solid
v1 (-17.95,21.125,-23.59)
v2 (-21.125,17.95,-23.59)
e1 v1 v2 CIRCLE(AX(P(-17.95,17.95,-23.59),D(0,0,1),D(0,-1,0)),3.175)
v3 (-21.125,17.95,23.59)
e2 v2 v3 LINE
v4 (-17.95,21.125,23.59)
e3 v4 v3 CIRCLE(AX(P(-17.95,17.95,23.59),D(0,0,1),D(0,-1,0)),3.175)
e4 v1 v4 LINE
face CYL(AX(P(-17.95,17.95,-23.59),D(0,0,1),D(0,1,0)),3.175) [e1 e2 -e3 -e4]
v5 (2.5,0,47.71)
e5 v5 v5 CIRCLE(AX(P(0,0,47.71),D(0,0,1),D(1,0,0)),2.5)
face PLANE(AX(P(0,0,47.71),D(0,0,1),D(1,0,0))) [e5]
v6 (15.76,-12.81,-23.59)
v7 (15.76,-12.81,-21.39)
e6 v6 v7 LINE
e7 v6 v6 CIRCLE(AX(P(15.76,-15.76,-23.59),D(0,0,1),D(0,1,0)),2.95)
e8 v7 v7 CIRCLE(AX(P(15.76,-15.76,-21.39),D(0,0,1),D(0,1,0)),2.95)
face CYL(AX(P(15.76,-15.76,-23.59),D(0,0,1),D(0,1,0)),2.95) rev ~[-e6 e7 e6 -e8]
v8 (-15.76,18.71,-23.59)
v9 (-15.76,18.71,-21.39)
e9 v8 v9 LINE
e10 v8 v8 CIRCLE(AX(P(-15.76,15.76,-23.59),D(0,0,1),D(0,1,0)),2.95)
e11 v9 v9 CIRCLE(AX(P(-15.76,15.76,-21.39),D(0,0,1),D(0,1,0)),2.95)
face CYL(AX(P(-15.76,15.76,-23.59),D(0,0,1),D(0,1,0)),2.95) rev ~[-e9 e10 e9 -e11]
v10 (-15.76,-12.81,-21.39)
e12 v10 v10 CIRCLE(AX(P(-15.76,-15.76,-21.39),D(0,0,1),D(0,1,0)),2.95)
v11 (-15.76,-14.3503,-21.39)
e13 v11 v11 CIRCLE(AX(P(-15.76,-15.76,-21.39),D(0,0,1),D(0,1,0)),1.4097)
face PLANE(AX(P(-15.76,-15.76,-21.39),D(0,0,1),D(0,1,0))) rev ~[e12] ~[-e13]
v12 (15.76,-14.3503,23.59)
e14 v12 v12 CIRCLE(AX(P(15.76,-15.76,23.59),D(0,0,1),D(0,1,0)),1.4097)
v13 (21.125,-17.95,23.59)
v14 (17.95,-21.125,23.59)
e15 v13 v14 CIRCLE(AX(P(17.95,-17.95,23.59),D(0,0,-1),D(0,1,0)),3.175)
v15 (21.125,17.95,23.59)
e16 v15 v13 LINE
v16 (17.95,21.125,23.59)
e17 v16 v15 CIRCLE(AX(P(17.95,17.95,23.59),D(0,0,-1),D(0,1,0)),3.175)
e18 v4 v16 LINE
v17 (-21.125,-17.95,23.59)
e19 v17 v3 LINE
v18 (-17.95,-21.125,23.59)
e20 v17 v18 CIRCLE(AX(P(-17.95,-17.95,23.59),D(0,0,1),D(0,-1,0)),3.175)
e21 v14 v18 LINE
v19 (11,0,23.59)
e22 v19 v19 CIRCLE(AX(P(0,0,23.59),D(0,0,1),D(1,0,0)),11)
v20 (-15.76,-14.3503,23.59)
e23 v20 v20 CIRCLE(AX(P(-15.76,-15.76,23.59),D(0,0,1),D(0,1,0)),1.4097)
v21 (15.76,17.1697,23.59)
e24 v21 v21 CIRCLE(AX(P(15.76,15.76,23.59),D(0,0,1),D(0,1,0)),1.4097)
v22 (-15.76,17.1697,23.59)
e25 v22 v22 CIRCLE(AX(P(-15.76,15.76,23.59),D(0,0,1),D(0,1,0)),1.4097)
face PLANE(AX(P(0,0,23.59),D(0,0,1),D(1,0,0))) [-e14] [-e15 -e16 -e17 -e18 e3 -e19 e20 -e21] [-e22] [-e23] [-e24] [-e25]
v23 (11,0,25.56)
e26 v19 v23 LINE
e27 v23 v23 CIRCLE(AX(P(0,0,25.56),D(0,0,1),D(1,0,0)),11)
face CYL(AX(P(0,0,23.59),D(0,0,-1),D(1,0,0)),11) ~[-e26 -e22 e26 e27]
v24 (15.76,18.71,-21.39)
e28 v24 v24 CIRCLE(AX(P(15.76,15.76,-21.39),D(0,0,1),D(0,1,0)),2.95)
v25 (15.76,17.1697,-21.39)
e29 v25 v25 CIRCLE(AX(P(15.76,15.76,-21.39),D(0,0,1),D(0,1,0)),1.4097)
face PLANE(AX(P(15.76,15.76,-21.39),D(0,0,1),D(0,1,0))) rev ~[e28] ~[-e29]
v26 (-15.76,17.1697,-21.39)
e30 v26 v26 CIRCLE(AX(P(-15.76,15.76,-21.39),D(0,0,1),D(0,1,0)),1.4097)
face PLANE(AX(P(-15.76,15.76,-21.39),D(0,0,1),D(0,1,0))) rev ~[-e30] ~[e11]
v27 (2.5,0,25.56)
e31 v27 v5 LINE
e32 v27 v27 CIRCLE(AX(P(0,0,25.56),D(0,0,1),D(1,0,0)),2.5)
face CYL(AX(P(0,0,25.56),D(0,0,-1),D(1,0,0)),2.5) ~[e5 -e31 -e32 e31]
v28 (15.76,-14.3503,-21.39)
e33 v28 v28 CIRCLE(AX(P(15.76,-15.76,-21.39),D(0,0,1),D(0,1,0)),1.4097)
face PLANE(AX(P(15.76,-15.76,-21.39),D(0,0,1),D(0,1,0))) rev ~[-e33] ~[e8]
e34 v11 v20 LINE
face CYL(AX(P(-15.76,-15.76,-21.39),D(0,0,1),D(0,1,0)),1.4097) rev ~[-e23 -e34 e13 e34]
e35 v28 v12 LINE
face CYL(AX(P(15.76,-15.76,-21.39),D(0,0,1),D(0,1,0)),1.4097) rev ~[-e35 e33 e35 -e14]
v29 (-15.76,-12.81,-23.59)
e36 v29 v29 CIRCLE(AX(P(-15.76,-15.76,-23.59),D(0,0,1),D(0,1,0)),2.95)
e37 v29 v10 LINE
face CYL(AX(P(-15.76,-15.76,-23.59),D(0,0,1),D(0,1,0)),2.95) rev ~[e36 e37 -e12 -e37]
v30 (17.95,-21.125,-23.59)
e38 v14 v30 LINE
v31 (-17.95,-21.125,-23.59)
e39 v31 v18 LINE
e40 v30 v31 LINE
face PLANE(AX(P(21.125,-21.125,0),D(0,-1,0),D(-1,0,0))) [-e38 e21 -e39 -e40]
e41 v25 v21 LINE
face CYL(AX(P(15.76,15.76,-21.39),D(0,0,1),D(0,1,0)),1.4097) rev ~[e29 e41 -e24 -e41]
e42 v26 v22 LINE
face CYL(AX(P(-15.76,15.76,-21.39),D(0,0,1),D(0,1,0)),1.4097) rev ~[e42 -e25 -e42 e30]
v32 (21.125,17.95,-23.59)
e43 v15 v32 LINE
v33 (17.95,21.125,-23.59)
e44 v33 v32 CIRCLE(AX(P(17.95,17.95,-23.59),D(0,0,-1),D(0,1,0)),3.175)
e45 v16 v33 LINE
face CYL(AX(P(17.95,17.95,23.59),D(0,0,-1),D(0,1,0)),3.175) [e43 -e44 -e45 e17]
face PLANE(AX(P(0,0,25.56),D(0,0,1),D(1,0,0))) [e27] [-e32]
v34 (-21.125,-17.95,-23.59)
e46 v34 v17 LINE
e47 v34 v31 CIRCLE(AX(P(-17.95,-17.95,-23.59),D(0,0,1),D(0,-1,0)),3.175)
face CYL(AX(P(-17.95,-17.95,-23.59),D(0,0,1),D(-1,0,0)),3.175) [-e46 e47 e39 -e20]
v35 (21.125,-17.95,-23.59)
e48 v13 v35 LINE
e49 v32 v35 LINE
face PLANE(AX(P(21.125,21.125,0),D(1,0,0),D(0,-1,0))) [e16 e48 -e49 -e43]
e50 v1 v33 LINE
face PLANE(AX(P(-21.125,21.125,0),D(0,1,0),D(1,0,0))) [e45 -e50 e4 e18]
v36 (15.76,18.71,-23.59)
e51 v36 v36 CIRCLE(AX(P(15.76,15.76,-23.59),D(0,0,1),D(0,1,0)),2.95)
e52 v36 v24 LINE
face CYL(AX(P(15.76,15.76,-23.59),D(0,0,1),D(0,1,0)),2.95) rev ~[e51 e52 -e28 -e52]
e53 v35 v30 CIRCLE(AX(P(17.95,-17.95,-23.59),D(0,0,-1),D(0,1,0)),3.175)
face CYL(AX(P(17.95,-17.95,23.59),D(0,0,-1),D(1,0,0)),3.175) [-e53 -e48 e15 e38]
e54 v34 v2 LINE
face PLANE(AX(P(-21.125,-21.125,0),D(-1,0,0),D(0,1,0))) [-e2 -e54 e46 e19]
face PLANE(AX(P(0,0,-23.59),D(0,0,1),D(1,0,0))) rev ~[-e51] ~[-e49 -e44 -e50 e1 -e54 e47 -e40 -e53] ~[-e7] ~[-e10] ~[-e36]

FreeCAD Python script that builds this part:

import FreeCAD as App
import Part
import Sketcher
from FreeCAD import Vector


def edges_at(feature, points):
    """Names of the edges that pass closest to the given points."""
    edges = feature.Shape.Edges
    near = lambda p: min(range(len(edges)), key=lambda i: edges[i].distToShape(Part.Vertex(*p))[0])
    return sorted({f"Edge{near(p) + 1}" for p in points})

doc = App.newDocument("Part")
body = doc.addObject("PartDesign::Body", "Body")

sketch1 = doc.addObject("Sketcher::SketchObject", "Sketch")
body.addObject(sketch1)
sketch1.AttachmentSupport = (doc.XY_Plane, [""])
sketch1.MapMode = "FlatFace"
sketch1.addGeometry([
    Part.LineSegment(Vector(21, 21, 0), Vector(-21, 21, 0)),
    Part.LineSegment(Vector(-21, 21, 0), Vector(-21, -21, 0)),
    Part.LineSegment(Vector(-21, -21, 0), Vector(21, -21, 0)),
    Part.LineSegment(Vector(21, -21, 0), Vector(21, 21, 0)),
], False)
sketch1.addConstraint([
    Sketcher.Constraint("Coincident", 0, 2, 1, 1),
    Sketcher.Constraint("Coincident", 1, 2, 2, 1),
    Sketcher.Constraint("Coincident", 2, 2, 3, 1),
    Sketcher.Constraint("Coincident", 3, 2, 0, 1),
    Sketcher.Constraint("Horizontal", 0),
    Sketcher.Constraint("Vertical", 1),
    Sketcher.Constraint("Horizontal", 2),
    Sketcher.Constraint("Vertical", 3),
    Sketcher.Constraint("Symmetric", 0, 2, 2, 2, -1, 1),
    Sketcher.Constraint("Equal", 2, 1),
    Sketcher.Constraint("DistanceX", 0, 2, 0, 1, 42.25),
])
pad1 = doc.addObject("PartDesign::Pad", "Pad")
body.addObject(pad1)
pad1.Profile = sketch1
pad1.Length = 47.18
pad1.Midplane = True

sketch2 = doc.addObject("Sketcher::SketchObject", "Sketch001")
body.addObject(sketch2)
sketch2.AttachmentSupport = (doc.XY_Plane, [""])
sketch2.MapMode = "FlatFace"
sketch2.AttachmentOffset = App.Placement(Vector(0, 0, 23.59), App.Rotation())
sketch2.addGeometry(Part.Circle(Vector(0, 0, 0), Vector(0, 0, 1), 11), False)
sketch2.addConstraint([
    Sketcher.Constraint("Coincident", 0, 3, -1, 1),
    Sketcher.Constraint("Diameter", 0, 22.0),
])
pad2 = doc.addObject("PartDesign::Pad", "Pad001")
body.addObject(pad2)
pad2.Profile = sketch2
pad2.Length = 1.97
doc.recompute()

fillet = doc.addObject("PartDesign::Fillet", "Fillet")
body.addObject(fillet)
fillet.Base = (pad2, edges_at(pad2, [
    (-21.125, 21.125, 0),
    (-21.125, -21.125, 0),
    (21.125, 21.125, 0),
    (21.125, -21.125, 0),
]))
fillet.Radius = 3.175

sketch3 = doc.addObject("Sketcher::SketchObject", "Sketch002")
body.addObject(sketch3)
sketch3.AttachmentSupport = (doc.XY_Plane, [""])
sketch3.MapMode = "FlatFace"
sketch3.AttachmentOffset = App.Placement(Vector(0, 0, 25.56), App.Rotation())
sketch3.addGeometry(Part.Circle(Vector(0, 0, 0), Vector(0, 0, 1), 2.5), False)
sketch3.addConstraint([
    Sketcher.Constraint("Coincident", 0, 3, -1, 1),
    Sketcher.Constraint("Diameter", 0, 5.0),
])
pad3 = doc.addObject("PartDesign::Pad", "Pad002")
body.addObject(pad3)
pad3.Profile = sketch3
pad3.Length = 22.15

sketch4 = doc.addObject("Sketcher::SketchObject", "Sketch003")
body.addObject(sketch4)
sketch4.AttachmentSupport = (doc.XY_Plane, [""])
sketch4.MapMode = "FlatFace"
sketch4.AttachmentOffset = App.Placement(Vector(0, 0, -23.59), App.Rotation())
sketch4.addGeometry([
    Part.Circle(Vector(15.8, 15.8, 0), Vector(0, 0, 1), 3),
    Part.Circle(Vector(-15.8, 15.8, 0), Vector(0, 0, 1), 3),
    Part.Circle(Vector(-15.8, -15.8, 0), Vector(0, 0, 1), 3),
    Part.Circle(Vector(15.8, -15.8, 0), Vector(0, 0, 1), 3),
], False)
sketch4.addConstraint([
    Sketcher.Constraint("Equal", 0, 1),
    Sketcher.Constraint("Equal", 1, 2),
    Sketcher.Constraint("Equal", 2, 3),
    Sketcher.Constraint("Symmetric", 0, 3, 2, 3, -1, 1),
    Sketcher.Constraint("Symmetric", 1, 3, 3, 3, -1, 1),
    Sketcher.Constraint("Symmetric", 0, 3, 1, 3, -2),
    Sketcher.Constraint("Diameter", 0, 5.9),
    Sketcher.Constraint("DistanceX", -1, 1, 0, 3, 15.76),
    Sketcher.Constraint("DistanceY", -1, 1, 0, 3, 15.76),
])
doc.recompute()
hole = doc.addObject("PartDesign::Hole", "Hole")
body.addObject(hole)
hole.Profile = sketch4
hole.ThreadType = "None"
hole.Diameter = 5.9
hole.DepthType = "Dimension"
hole.Depth = 2.2
hole.DrillPoint = "Flat"
hole.Reversed = True

sketch5 = doc.addObject("Sketcher::SketchObject", "Sketch004")
body.addObject(sketch5)
sketch5.AttachmentSupport = (doc.XY_Plane, [""])
sketch5.MapMode = "FlatFace"
sketch5.AttachmentOffset = App.Placement(Vector(0, 0, -21.39), App.Rotation())
sketch5.addGeometry(Part.Circle(Vector(15.8, -15.8, 0), Vector(0, 0, 1), 1.4), False)
sketch5.addConstraint([
    Sketcher.Constraint("Diameter", 0, 2.8194),
    Sketcher.Constraint("DistanceX", -1, 1, 0, 3, 15.76),
    Sketcher.Constraint("DistanceY", 0, 3, -1, 1, 15.76),
])
doc.recompute()
hole2 = doc.addObject("PartDesign::Hole", "Hole001")
body.addObject(hole2)
hole2.Profile = sketch5
hole2.ThreadType = "None"
hole2.Diameter = 2.8194
hole2.DepthType = "ThroughAll"
hole2.Reversed = True

sketch6 = doc.addObject("Sketcher::SketchObject", "Sketch005")
body.addObject(sketch6)
sketch6.AttachmentSupport = (doc.XY_Plane, [""])
sketch6.MapMode = "FlatFace"
sketch6.AttachmentOffset = App.Placement(Vector(0, 0, -21.39), App.Rotation())
sketch6.addGeometry(Part.Circle(Vector(15.8, 15.8, 0), Vector(0, 0, 1), 1.4), False)
sketch6.addConstraint([
    Sketcher.Constraint("Diameter", 0, 2.8194),
    Sketcher.Constraint("DistanceX", -1, 1, 0, 3, 15.76),
    Sketcher.Constraint("DistanceY", -1, 1, 0, 3, 15.76),
])
doc.recompute()
hole3 = doc.addObject("PartDesign::Hole", "Hole002")
body.addObject(hole3)
hole3.Profile = sketch6
hole3.ThreadType = "None"
hole3.Diameter = 2.8194
hole3.DepthType = "ThroughAll"
hole3.Reversed = True

sketch7 = doc.addObject("Sketcher::SketchObject", "Sketch006")
body.addObject(sketch7)
sketch7.AttachmentSupport = (doc.XY_Plane, [""])
sketch7.MapMode = "FlatFace"
sketch7.AttachmentOffset = App.Placement(Vector(0, 0, -21.39), App.Rotation())
sketch7.addGeometry(Part.Circle(Vector(-15.8, -15.8, 0), Vector(0, 0, 1), 1.4), False)
sketch7.addConstraint([
    Sketcher.Constraint("Diameter", 0, 2.8194),
    Sketcher.Constraint("DistanceX", 0, 3, -1, 1, 15.76),
    Sketcher.Constraint("DistanceY", 0, 3, -1, 1, 15.76),
])
doc.recompute()
hole4 = doc.addObject("PartDesign::Hole", "Hole003")
body.addObject(hole4)
hole4.Profile = sketch7
hole4.ThreadType = "None"
hole4.Diameter = 2.8194
hole4.DepthType = "ThroughAll"
hole4.Reversed = True

sketch8 = doc.addObject("Sketcher::SketchObject", "Sketch007")
body.addObject(sketch8)
sketch8.AttachmentSupport = (doc.XY_Plane, [""])
sketch8.MapMode = "FlatFace"
sketch8.AttachmentOffset = App.Placement(Vector(0, 0, -21.39), App.Rotation())
sketch8.addGeometry(Part.Circle(Vector(-15.8, 15.8, 0), Vector(0, 0, 1), 1.4), False)
sketch8.addConstraint([
    Sketcher.Constraint("Diameter", 0, 2.8194),
    Sketcher.Constraint("DistanceX", 0, 3, -1, 1, 15.76),
    Sketcher.Constraint("DistanceY", -1, 1, 0, 3, 15.76),
])
doc.recompute()
hole5 = doc.addObject("PartDesign::Hole", "Hole004")
body.addObject(hole5)
hole5.Profile = sketch8
hole5.ThreadType = "None"
hole5.Diameter = 2.8194
hole5.DepthType = "ThroughAll"
hole5.Reversed = True

doc.recompute()
